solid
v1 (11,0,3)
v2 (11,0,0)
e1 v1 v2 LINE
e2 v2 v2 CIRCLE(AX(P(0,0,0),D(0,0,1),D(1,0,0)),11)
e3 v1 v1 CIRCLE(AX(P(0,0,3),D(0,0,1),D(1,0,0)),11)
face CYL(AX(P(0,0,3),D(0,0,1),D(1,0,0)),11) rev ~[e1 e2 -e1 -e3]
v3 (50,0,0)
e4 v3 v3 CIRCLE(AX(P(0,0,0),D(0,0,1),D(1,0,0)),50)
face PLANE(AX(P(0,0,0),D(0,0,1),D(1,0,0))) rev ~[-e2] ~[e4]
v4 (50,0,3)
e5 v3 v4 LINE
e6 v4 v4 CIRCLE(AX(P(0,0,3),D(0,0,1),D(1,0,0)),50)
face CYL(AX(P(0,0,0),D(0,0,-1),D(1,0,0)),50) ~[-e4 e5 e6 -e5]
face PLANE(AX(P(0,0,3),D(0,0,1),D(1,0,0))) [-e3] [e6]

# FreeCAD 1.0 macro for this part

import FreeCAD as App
import Part
import Sketcher

V = App.Vector
Q = App.Units.Quantity

doc = App.newDocument("Part")
body = doc.addObject("PartDesign::Body", "Body")

# Sketch on XY plane
sketch1 = doc.addObject("Sketcher::SketchObject", "Sketch")
body.addObject(sketch1)
sketch1.AttachmentSupport = (doc.XY_Plane, [""])
sketch1.MapMode = "FlatFace"
sketch1.addGeometry(Part.Circle(V(0, 0, 0), V(0, 0, 1), 50), False)
sketch1.addConstraint([
    Sketcher.Constraint("Coincident", 0, 3, -1, 1),
    Sketcher.Constraint("Diameter", 0, Q("100 mm")),
])
pad1 = doc.addObject("PartDesign::Pad", "Pad")
body.addObject(pad1)
pad1.Profile = sketch1
pad1.Length = 3

# Sketch on XY plane
sketch2 = doc.addObject("Sketcher::SketchObject", "Sketch001")
body.addObject(sketch2)
sketch2.AttachmentSupport = (doc.XY_Plane, [""])
sketch2.MapMode = "FlatFace"
sketch2.AttachmentOffset = App.Placement(V(0, 0, 3), App.Rotation())
sketch2.addGeometry(Part.Circle(V(0, 0, 0), V(0, 0, 1), 11), False)
sketch2.addConstraint([
    Sketcher.Constraint("Coincident", 0, 3, -1, 1),
    Sketcher.Constraint("Diameter", 0, Q("22 mm")),
])
pocket1 = doc.addObject("PartDesign::Pocket", "Pocket")
body.addObject(pocket1)
pocket1.Profile = sketch2
pocket1.Type = "ThroughAll"

doc.recompute()
